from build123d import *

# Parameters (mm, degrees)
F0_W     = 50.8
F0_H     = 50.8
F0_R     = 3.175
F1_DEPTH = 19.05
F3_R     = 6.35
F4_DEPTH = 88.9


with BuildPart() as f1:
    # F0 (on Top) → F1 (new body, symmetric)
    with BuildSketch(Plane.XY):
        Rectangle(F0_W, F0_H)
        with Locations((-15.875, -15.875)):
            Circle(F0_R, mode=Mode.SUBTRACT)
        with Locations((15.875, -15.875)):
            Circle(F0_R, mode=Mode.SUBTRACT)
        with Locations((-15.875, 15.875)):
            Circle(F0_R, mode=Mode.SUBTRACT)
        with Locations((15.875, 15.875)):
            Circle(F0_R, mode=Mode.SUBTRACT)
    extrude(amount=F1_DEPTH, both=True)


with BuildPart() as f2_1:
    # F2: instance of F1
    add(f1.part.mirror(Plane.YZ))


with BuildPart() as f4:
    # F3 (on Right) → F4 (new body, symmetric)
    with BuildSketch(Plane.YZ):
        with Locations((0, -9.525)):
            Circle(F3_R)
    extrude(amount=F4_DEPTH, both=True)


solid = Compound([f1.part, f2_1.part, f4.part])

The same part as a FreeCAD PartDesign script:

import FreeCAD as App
import Part
import Sketcher
from FreeCAD import Vector
Q = App.Units.Quantity

doc = App.newDocument("Part")
params = doc.addObject("Spreadsheet::Sheet", "Params")
for row, (alias, value) in enumerate([
    ("sketch1_diameter", "0.25 in"),
    ("sketch1_width", "2 in"),
    ("pad1_length", "1.5 in"),
    ("sketch2_diameter", "0.5 in"),
    ("pad2_length", "7 in"),
], start=1):
    params.set(f"A{row}", alias)
    params.set(f"B{row}", "=" + value)
    params.setAlias(f"B{row}", alias)

body = doc.addObject("PartDesign::Body", "Body")

# Sketch on XY plane
sketch1 = body.newObject("Sketcher::SketchObject", "Sketch")
sketch1.AttachmentSupport = (doc.getObject("XY_Plane"), [""])
sketch1.MapMode = "FlatFace"
sketch1.addGeometry(Part.LineSegment(Vector(-25.4, 25.4, 0), Vector(-25.4, -25.4, 0)), False)
sketch1.addGeometry(Part.LineSegment(Vector(-25.4, -25.4, 0), Vector(25.4, -25.4, 0)), False)
sketch1.addGeometry(Part.LineSegment(Vector(25.4, -25.4, 0), Vector(25.4, 25.4, 0)), False)
sketch1.addGeometry(Part.LineSegment(Vector(25.4, 25.4, 0), Vector(-25.4, 25.4, 0)), False)
sketch1.addGeometry(Part.Circle(Vector(-15.875, -15.875, 0), Vector(0, 0, 1), 3.175), False)
sketch1.addGeometry(Part.Circle(Vector(15.875, -15.875, 0), Vector(0, 0, 1), 3.175), False)
sketch1.addGeometry(Part.Circle(Vector(-15.875, 15.875, 0), Vector(0, 0, 1), 3.175), False)
sketch1.addGeometry(Part.Circle(Vector(15.875, 15.875, 0), Vector(0, 0, 1), 3.175), False)
sketch1.addConstraint(Sketcher.Constraint("Coincident", 0, 2, 1, 1))
sketch1.addConstraint(Sketcher.Constraint("Coincident", 1, 2, 2, 1))
sketch1.addConstraint(Sketcher.Constraint("Coincident", 2, 2, 3, 1))
sketch1.addConstraint(Sketcher.Constraint("Coincident", 3, 2, 0, 1))
sketch1.addConstraint(Sketcher.Constraint("Vertical", 0))
sketch1.addConstraint(Sketcher.Constraint("Horizontal", 1))
sketch1.addConstraint(Sketcher.Constraint("Vertical", 2))
sketch1.addConstraint(Sketcher.Constraint("Horizontal", 3))
sketch1.addConstraint(Sketcher.Constraint("Equal", 4, 5))
sketch1.addConstraint(Sketcher.Constraint("Equal", 5, 6))
sketch1.addConstraint(Sketcher.Constraint("Equal", 6, 7))
sketch1.addConstraint(Sketcher.Constraint("Symmetric", 5, 3, 6, 3, -1, 1))
sketch1.addConstraint(Sketcher.Constraint("Symmetric", 4, 3, 7, 3, -1, 1))
sketch1.addConstraint(Sketcher.Constraint("Symmetric", 0, 2, 2, 2, -1, 1))
sketch1.addConstraint(Sketcher.Constraint("Symmetric", 4, 3, 5, 3, -2))
sketch1.addConstraint(Sketcher.Constraint("Equal", 3, 0))
sketch1.addConstraint(Sketcher.Constraint("Diameter", 4, Q("0.25 in")))
sketch1.addConstraint(Sketcher.Constraint("DistanceX", 1, 1, 1, 2, Q("2 in")))
sketch1.addConstraint(Sketcher.Constraint("DistanceX", 4, 3, 5, 3, Q("1.25 in")))
sketch1.addConstraint(Sketcher.Constraint("DistanceY", 4, 3, 6, 3, Q("1.25 in")))
sketch1.setExpression("Constraints[16]", "Params.sketch1_diameter")
sketch1.setExpression("Constraints[17]", "Params.sketch1_width")
pad1 = body.newObject("PartDesign::Pad", "Pad")
pad1.Profile = sketch1
pad1.setExpression("Length", "Params.pad1_length")
pad1.Midplane = True
body2 = doc.addObject("PartDesign::Body", "Body001")
doc.recompute()

mirroring = doc.addObject("Part::Mirroring", "Mirroring")
mirroring.Source = body
mirroring.Base = Vector(0, 0, 0)
mirroring.Normal = Vector(1, 0, 0)
body2.BaseFeature = mirroring
doc.recompute()
body3 = doc.addObject("PartDesign::Body", "Body002")

# Sketch on YZ plane
sketch2 = body3.newObject("Sketcher::SketchObject", "Sketch001")
sketch2.AttachmentSupport = (doc.getObject("YZ_Plane002"), [""])
sketch2.MapMode = "FlatFace"
sketch2.addGeometry(Part.Circle(Vector(0, -9.525, 0), Vector(0, 0, 1), 6.35), False)
sketch2.addConstraint(Sketcher.Constraint("PointOnObject", 0, 3, -2))
sketch2.addConstraint(Sketcher.Constraint("Diameter", 0, Q("0.5 in")))
sketch2.addConstraint(Sketcher.Constraint("DistanceY", 0, 3, -1, 1, Q("0.375 in")))
sketch2.setExpression("Constraints[1]", "Params.sketch2_diameter")
pad2 = body3.newObject("PartDesign::Pad", "Pad001")
pad2.Profile = sketch2
pad2.setExpression("Length", "Params.pad2_length")
pad2.Midplane = True
mirroring.Visibility = False

doc.recompute()
